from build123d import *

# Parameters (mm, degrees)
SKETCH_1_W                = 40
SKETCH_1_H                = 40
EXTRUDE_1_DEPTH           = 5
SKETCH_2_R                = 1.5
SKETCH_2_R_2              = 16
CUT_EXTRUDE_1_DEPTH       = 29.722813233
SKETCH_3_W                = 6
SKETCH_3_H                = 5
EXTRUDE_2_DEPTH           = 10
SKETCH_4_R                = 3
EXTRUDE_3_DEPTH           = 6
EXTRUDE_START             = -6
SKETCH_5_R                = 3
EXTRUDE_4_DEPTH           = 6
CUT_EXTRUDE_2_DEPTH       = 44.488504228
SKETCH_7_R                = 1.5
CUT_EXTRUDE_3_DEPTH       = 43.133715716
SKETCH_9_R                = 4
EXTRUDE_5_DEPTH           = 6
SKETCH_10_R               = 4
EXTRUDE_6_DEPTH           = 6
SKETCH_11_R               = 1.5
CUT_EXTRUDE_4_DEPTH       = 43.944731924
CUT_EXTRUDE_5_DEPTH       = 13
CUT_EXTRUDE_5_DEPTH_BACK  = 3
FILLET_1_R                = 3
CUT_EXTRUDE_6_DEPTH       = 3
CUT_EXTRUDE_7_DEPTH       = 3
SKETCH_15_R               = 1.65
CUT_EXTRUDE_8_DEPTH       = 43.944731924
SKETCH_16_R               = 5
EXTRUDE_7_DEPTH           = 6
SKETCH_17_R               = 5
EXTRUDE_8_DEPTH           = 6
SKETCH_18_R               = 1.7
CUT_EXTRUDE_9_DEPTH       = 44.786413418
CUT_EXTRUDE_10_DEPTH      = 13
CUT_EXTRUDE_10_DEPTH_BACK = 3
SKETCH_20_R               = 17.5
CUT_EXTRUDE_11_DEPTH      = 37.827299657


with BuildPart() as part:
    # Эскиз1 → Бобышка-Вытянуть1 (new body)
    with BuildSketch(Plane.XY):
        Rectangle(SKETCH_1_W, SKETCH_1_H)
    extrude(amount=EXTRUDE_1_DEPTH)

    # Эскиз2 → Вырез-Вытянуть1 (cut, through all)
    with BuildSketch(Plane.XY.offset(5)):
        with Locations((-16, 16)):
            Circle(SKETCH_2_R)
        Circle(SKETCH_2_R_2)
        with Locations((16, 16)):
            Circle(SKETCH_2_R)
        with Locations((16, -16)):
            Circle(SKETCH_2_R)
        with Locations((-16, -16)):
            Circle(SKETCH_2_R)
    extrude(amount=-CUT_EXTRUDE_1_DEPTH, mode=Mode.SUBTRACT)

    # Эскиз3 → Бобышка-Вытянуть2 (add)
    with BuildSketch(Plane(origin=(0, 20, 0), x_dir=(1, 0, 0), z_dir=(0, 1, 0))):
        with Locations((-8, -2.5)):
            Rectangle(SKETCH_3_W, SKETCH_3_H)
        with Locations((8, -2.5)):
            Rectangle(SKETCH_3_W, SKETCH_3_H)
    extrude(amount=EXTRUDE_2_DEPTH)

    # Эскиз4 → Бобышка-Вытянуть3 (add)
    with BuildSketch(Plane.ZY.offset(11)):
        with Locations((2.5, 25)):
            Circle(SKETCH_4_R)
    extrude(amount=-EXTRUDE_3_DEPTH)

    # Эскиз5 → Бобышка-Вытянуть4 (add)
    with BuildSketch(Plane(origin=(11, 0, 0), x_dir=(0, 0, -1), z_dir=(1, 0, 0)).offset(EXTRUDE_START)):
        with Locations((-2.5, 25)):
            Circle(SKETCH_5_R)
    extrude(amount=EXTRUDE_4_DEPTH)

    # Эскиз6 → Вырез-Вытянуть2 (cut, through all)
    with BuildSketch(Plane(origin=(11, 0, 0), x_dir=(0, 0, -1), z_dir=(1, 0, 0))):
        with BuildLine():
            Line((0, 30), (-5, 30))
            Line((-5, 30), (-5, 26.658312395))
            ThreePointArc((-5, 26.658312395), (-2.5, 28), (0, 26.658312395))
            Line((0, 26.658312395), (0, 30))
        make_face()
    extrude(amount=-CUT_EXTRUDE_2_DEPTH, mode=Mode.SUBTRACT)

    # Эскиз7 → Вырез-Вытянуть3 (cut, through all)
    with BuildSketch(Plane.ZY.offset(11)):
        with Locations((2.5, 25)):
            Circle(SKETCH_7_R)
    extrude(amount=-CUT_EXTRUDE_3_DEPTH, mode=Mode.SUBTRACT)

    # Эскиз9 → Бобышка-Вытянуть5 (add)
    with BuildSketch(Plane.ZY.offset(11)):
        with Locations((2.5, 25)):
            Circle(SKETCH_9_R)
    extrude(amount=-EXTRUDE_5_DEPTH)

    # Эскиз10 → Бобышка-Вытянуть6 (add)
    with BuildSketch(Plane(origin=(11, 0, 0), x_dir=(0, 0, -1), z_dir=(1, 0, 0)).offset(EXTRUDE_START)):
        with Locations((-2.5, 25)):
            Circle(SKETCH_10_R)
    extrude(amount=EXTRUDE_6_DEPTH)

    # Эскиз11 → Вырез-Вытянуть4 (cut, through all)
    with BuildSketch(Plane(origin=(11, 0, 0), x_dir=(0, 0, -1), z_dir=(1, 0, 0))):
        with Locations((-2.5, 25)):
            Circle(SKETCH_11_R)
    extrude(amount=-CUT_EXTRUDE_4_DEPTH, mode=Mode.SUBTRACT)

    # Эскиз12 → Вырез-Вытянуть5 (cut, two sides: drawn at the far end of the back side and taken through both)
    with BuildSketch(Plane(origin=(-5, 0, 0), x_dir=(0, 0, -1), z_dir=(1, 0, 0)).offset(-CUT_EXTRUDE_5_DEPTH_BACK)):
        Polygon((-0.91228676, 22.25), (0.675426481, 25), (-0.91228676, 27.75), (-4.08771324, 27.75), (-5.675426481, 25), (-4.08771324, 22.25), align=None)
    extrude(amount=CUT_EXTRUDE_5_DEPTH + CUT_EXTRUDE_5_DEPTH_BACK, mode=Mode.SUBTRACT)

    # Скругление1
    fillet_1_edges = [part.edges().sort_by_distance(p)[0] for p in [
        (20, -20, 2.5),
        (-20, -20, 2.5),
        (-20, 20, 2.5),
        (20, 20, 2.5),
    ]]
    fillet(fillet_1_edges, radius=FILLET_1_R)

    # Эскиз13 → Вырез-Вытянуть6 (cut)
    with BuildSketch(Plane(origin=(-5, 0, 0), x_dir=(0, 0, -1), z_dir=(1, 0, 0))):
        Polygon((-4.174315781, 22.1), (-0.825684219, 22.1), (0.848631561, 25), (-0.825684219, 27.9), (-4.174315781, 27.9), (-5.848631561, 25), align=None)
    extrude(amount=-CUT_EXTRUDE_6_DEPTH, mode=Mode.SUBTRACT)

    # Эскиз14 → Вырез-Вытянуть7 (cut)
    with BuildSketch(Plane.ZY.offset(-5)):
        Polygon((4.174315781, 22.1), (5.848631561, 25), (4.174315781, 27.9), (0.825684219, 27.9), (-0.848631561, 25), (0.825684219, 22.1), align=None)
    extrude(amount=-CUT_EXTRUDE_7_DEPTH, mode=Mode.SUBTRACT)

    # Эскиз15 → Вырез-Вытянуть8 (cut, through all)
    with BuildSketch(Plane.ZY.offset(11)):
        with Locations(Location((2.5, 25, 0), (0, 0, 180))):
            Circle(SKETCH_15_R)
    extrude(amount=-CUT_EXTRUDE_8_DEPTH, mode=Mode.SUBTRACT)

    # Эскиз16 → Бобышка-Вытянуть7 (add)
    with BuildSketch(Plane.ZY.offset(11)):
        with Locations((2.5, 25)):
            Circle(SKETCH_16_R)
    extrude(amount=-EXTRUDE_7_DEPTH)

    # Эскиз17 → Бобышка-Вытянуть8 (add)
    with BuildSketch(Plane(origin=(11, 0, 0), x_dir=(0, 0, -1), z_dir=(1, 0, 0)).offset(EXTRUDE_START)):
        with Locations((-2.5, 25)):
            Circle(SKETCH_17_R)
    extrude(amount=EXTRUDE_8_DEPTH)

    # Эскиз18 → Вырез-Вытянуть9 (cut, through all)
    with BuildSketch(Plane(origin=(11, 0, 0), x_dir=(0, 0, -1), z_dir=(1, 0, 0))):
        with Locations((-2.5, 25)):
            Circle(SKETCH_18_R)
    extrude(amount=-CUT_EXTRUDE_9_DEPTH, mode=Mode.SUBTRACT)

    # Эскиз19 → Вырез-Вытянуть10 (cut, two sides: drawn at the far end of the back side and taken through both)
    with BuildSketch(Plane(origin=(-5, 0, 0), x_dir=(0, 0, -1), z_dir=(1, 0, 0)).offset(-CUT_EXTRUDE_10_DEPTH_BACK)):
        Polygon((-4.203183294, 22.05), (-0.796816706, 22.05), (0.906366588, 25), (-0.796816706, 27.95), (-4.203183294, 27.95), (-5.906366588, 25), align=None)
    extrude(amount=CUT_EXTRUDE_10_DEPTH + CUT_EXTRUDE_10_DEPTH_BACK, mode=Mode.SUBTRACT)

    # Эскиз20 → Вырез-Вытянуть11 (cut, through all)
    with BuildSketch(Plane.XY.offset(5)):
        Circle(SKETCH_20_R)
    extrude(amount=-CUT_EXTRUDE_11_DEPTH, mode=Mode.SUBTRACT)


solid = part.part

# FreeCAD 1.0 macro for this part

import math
import FreeCAD as App
import Part
import Sketcher
Q = App.Units.Quantity


def edges_at(feature, points):
    """Names of the edges that pass closest to the given points."""
    edges = feature.Shape.Edges
    near = lambda p: min(range(len(edges)), key=lambda i: edges[i].distToShape(Part.Vertex(*p))[0])
    return sorted({f"Edge{near(p) + 1}" for p in points})

doc = App.newDocument("Part")
params = doc.addObject("Spreadsheet::Sheet", "Params")
for row, (alias, value) in enumerate([
    ("sketch1_width", "40 mm"),
    ("pad1_length", "5 mm"),
    ("sketch2_diameter", "3 mm"),
    ("sketch2_diameter2", "32 mm"),
    ("sketch3_width", "6 mm"),
    ("sketch3_height", "5 mm"),
    ("pad2_length", "10 mm"),
    ("sketch4_diameter", "6 mm"),
    ("pad3_length", "6 mm"),
    ("sketch5_diameter", "6 mm"),
    ("pad4_length", "6 mm"),
    ("sketch6_radius", "3 mm"),
    ("sketch6_height", "5 mm"),
    ("sketch7_diameter", "3 mm"),
    ("sketch8_diameter", "8 mm"),
    ("pad5_length", "6 mm"),
    ("sketch9_diameter", "8 mm"),
    ("pad6_length", "6 mm"),
    ("sketch10_diameter", "3 mm"),
    ("pocket5_length", "13 mm"),
    ("pocket5_length2", "3 mm"),
    ("fillet_radius", "3 mm"),
    ("pocket6_length", "3 mm"),
    ("pocket7_length", "3 mm"),
    ("sketch14_diameter", "3.3 mm"),
    ("sketch15_diameter", "10 mm"),
    ("pad7_length", "6 mm"),
    ("sketch16_diameter", "10 mm"),
    ("pad8_length", "6 mm"),
    ("sketch17_diameter", "3.4 mm"),
    ("pocket10_length", "13 mm"),
    ("pocket10_length2", "3 mm"),
    ("sketch19_diameter", "35 mm"),
], start=1):
    params.set(f"A{row}", alias)
    params.set(f"B{row}", "=" + value)
    params.setAlias(f"B{row}", alias)

body = doc.addObject("PartDesign::Body", "Body")

sketch1 = doc.addObject("Sketcher::SketchObject", "Sketch")
body.addObject(sketch1)
sketch1.AttachmentSupport = (doc.XY_Plane, [""])
sketch1.MapMode = "FlatFace"
sketch1.addGeometry(Part.LineSegment(App.Vector(-20, 20, 0), App.Vector(-20, -20, 0)), False)
sketch1.addGeometry(Part.LineSegment(App.Vector(-20, -20, 0), App.Vector(20, -20, 0)), False)
sketch1.addGeometry(Part.LineSegment(App.Vector(20, -20, 0), App.Vector(20, 20, 0)), False)
sketch1.addGeometry(Part.LineSegment(App.Vector(20, 20, 0), App.Vector(-20, 20, 0)), False)
sketch1.addConstraint(Sketcher.Constraint("Coincident", 0, 2, 1, 1))
sketch1.addConstraint(Sketcher.Constraint("Coincident", 1, 2, 2, 1))
sketch1.addConstraint(Sketcher.Constraint("Coincident", 2, 2, 3, 1))
sketch1.addConstraint(Sketcher.Constraint("Coincident", 3, 2, 0, 1))
sketch1.addConstraint(Sketcher.Constraint("Vertical", 0))
sketch1.addConstraint(Sketcher.Constraint("Horizontal", 1))
sketch1.addConstraint(Sketcher.Constraint("Vertical", 2))
sketch1.addConstraint(Sketcher.Constraint("Horizontal", 3))
sketch1.addConstraint(Sketcher.Constraint("Symmetric", 0, 2, 2, 2, -1, 1))
sketch1.addConstraint(Sketcher.Constraint("Equal", 3, 0))
sketch1.addConstraint(Sketcher.Constraint("DistanceX", 1, 1, 1, 2, 40.0))
sketch1.setExpression("Constraints[10]", "Params.sketch1_width")
pad1 = doc.addObject("PartDesign::Pad", "Pad")
body.addObject(pad1)
pad1.Profile = sketch1
pad1.setExpression("Length", "Params.pad1_length")

sketch2 = doc.addObject("Sketcher::SketchObject", "Sketch001")
body.addObject(sketch2)
sketch2.AttachmentSupport = (doc.XY_Plane, [""])
sketch2.MapMode = "FlatFace"
sketch2.AttachmentOffset = App.Placement(App.Vector(0, 0, 5), App.Rotation())
sketch2.addGeometry(Part.Circle(App.Vector(-16, 16, 0), App.Vector(0, 0, 1), 1.5), False)
sketch2.addGeometry(Part.Circle(App.Vector(0, 0, 0), App.Vector(0, 0, 1), 16), False)
sketch2.addGeometry(Part.Circle(App.Vector(16, 16, 0), App.Vector(0, 0, 1), 1.5), False)
sketch2.addGeometry(Part.Circle(App.Vector(16, -16, 0), App.Vector(0, 0, 1), 1.5), False)
sketch2.addGeometry(Part.Circle(App.Vector(-16, -16, 0), App.Vector(0, 0, 1), 1.5), False)
sketch2.addConstraint(Sketcher.Constraint("Coincident", 1, 3, -1, 1))
sketch2.addConstraint(Sketcher.Constraint("Equal", 0, 2))
sketch2.addConstraint(Sketcher.Constraint("Equal", 2, 3))
sketch2.addConstraint(Sketcher.Constraint("Equal", 3, 4))
sketch2.addConstraint(Sketcher.Constraint("Symmetric", 0, 3, 3, 3, -1, 1))
sketch2.addConstraint(Sketcher.Constraint("Symmetric", 2, 3, 4, 3, -1, 1))
sketch2.addConstraint(Sketcher.Constraint("Symmetric", 0, 3, 2, 3, -2))
sketch2.addConstraint(Sketcher.Constraint("Diameter", 0, 3.0))
sketch2.addConstraint(Sketcher.Constraint("Diameter", 1, 32.0))
sketch2.addConstraint(Sketcher.Constraint("DistanceX", 0, 3, -1, 1, 16.0))
sketch2.addConstraint(Sketcher.Constraint("DistanceY", -1, 1, 0, 3, 16.0))
sketch2.setExpression("Constraints[7]", "Params.sketch2_diameter")
sketch2.setExpression("Constraints[8]", "Params.sketch2_diameter2")
pocket1 = doc.addObject("PartDesign::Pocket", "Pocket")
body.addObject(pocket1)
pocket1.Profile = sketch2
pocket1.Type = "ThroughAll"

sketch3 = doc.addObject("Sketcher::SketchObject", "Sketch002")
body.addObject(sketch3)
sketch3.AttachmentSupport = (doc.XZ_Plane, [""])
sketch3.MapMode = "FlatFace"
sketch3.AttachmentOffset = App.Placement(App.Vector(0, 0, -20), App.Rotation())
sketch3.addGeometry(Part.LineSegment(App.Vector(-11, 0, 0), App.Vector(-11, 5, 0)), False)
sketch3.addGeometry(Part.LineSegment(App.Vector(-11, 5, 0), App.Vector(-5, 5, 0)), False)
sketch3.addGeometry(Part.LineSegment(App.Vector(-5, 5, 0), App.Vector(-5, 0, 0)), False)
sketch3.addGeometry(Part.LineSegment(App.Vector(-5, 0, 0), App.Vector(-11, 0, 0)), False)
sketch3.addGeometry(Part.LineSegment(App.Vector(5, 0, 0), App.Vector(5, 5, 0)), False)
sketch3.addGeometry(Part.LineSegment(App.Vector(5, 5, 0), App.Vector(11, 5, 0)), False)
sketch3.addGeometry(Part.LineSegment(App.Vector(11, 5, 0), App.Vector(11, 0, 0)), False)
sketch3.addGeometry(Part.LineSegment(App.Vector(11, 0, 0), App.Vector(5, 0, 0)), False)
sketch3.addConstraint(Sketcher.Constraint("Coincident", 0, 2, 1, 1))
sketch3.addConstraint(Sketcher.Constraint("Coincident", 1, 2, 2, 1))
sketch3.addConstraint(Sketcher.Constraint("Coincident", 2, 2, 3, 1))
sketch3.addConstraint(Sketcher.Constraint("Coincident", 3, 2, 0, 1))
sketch3.addConstraint(Sketcher.Constraint("Coincident", 4, 2, 5, 1))
sketch3.addConstraint(Sketcher.Constraint("Coincident", 5, 2, 6, 1))
sketch3.addConstraint(Sketcher.Constraint("Coincident", 6, 2, 7, 1))
sketch3.addConstraint(Sketcher.Constraint("Coincident", 7, 2, 4, 1))
sketch3.addConstraint(Sketcher.Constraint("Vertical", 0))
sketch3.addConstraint(Sketcher.Constraint("Horizontal", 1))
sketch3.addConstraint(Sketcher.Constraint("Vertical", 2))
sketch3.addConstraint(Sketcher.Constraint("Horizontal", 3))
sketch3.addConstraint(Sketcher.Constraint("Vertical", 4))
sketch3.addConstraint(Sketcher.Constraint("Horizontal", 5))
sketch3.addConstraint(Sketcher.Constraint("Vertical", 6))
sketch3.addConstraint(Sketcher.Constraint("Horizontal", 7))
sketch3.addConstraint(Sketcher.Constraint("Symmetric", 3, 2, 6, 2, -1, 1))
sketch3.addConstraint(Sketcher.Constraint("Symmetric", 1, 2, 4, 2, -2))
sketch3.addConstraint(Sketcher.Constraint("PointOnObject", 2, 2, -1))
sketch3.addConstraint(Sketcher.Constraint("DistanceX", 1, 1, 1, 2, 6.0))
sketch3.addConstraint(Sketcher.Constraint("DistanceY", 0, 1, 0, 2, 5.0))
sketch3.addConstraint(Sketcher.Constraint("DistanceX", 0, 2, -1, 1, 11.0))
sketch3.setExpression("Constraints[19]", "Params.sketch3_width")
sketch3.setExpression("Constraints[20]", "Params.sketch3_height")
pad2 = doc.addObject("PartDesign::Pad", "Pad001")
body.addObject(pad2)
pad2.Profile = sketch3
pad2.setExpression("Length", "Params.pad2_length")
pad2.Reversed = True

sketch4 = doc.addObject("Sketcher::SketchObject", "Sketch003")
body.addObject(sketch4)
sketch4.AttachmentSupport = (doc.YZ_Plane, [""])
sketch4.MapMode = "FlatFace"
sketch4.AttachmentOffset = App.Placement(App.Vector(0, 0, -11), App.Rotation())
sketch4.addGeometry(Part.Circle(App.Vector(25, 2.5, 0), App.Vector(0, 0, 1), 3), False)
sketch4.addConstraint(Sketcher.Constraint("Diameter", 0, 6.0))
sketch4.addConstraint(Sketcher.Constraint("DistanceX", -1, 1, 0, 3, 25.0))
sketch4.addConstraint(Sketcher.Constraint("DistanceY", -1, 1, 0, 3, 2.5))
sketch4.setExpression("Constraints[0]", "Params.sketch4_diameter")
pad3 = doc.addObject("PartDesign::Pad", "Pad002")
body.addObject(pad3)
pad3.Profile = sketch4
pad3.setExpression("Length", "Params.pad3_length")

sketch5 = doc.addObject("Sketcher::SketchObject", "Sketch004")
body.addObject(sketch5)
sketch5.AttachmentSupport = (doc.YZ_Plane, [""])
sketch5.MapMode = "FlatFace"
sketch5.AttachmentOffset = App.Placement(App.Vector(0, 0, 5), App.Rotation())
sketch5.addGeometry(Part.Circle(App.Vector(25, 2.5, 0), App.Vector(0, 0, 1), 3), False)
sketch5.addConstraint(Sketcher.Constraint("Diameter", 0, 6.0))
sketch5.addConstraint(Sketcher.Constraint("DistanceX", -1, 1, 0, 3, 25.0))
sketch5.addConstraint(Sketcher.Constraint("DistanceY", -1, 1, 0, 3, 2.5))
sketch5.setExpression("Constraints[0]", "Params.sketch5_diameter")
pad4 = doc.addObject("PartDesign::Pad", "Pad003")
body.addObject(pad4)
pad4.Profile = sketch5
pad4.setExpression("Length", "Params.pad4_length")

sketch6 = doc.addObject("Sketcher::SketchObject", "Sketch005")
body.addObject(sketch6)
sketch6.AttachmentSupport = (doc.YZ_Plane, [""])
sketch6.MapMode = "FlatFace"
sketch6.AttachmentOffset = App.Placement(App.Vector(0, 0, 11), App.Rotation())
sketch6.addGeometry(Part.LineSegment(App.Vector(30, 0, 0), App.Vector(30, 5, 0)), False)
sketch6.addGeometry(Part.LineSegment(App.Vector(30, 5, 0), App.Vector(26.658312, 5, 0)), False)
sketch6.addGeometry(Part.ArcOfCircle(Part.Circle(App.Vector(25, 2.5, 0), App.Vector(0, 0, 1), 3), math.radians(-56.44269), math.radians(56.44269)), False)
sketch6.addGeometry(Part.LineSegment(App.Vector(26.658312, 0, 0), App.Vector(30, 0, 0)), False)
sketch6.addConstraint(Sketcher.Constraint("Coincident", 0, 2, 1, 1))
sketch6.addConstraint(Sketcher.Constraint("Coincident", 1, 2, 2, 2))
sketch6.addConstraint(Sketcher.Constraint("Coincident", 2, 1, 3, 1))
sketch6.addConstraint(Sketcher.Constraint("Coincident", 3, 2, 0, 1))
sketch6.addConstraint(Sketcher.Constraint("Vertical", 0))
sketch6.addConstraint(Sketcher.Constraint("Horizontal", 1))
sketch6.addConstraint(Sketcher.Constraint("Horizontal", 3))
sketch6.addConstraint(Sketcher.Constraint("PointOnObject", 2, 1, -1))
sketch6.addConstraint(Sketcher.Constraint("Vertical", 1, 2, 2, 1))
sketch6.addConstraint(Sketcher.Constraint("Radius", 2, 3.0))
sketch6.addConstraint(Sketcher.Constraint("DistanceY", 0, 1, 0, 2, 5.0))
sketch6.addConstraint(Sketcher.Constraint("DistanceX", -1, 1, 2, 3, 25.0))
sketch6.addConstraint(Sketcher.Constraint("DistanceX", -1, 1, 0, 2, 30.0))
sketch6.setExpression("Constraints[9]", "Params.sketch6_radius")
sketch6.setExpression("Constraints[10]", "Params.sketch6_height")
pocket2 = doc.addObject("PartDesign::Pocket", "Pocket001")
body.addObject(pocket2)
pocket2.Profile = sketch6
pocket2.Type = "ThroughAll"

sketch7 = doc.addObject("Sketcher::SketchObject", "Sketch006")
body.addObject(sketch7)
sketch7.AttachmentSupport = (doc.YZ_Plane, [""])
sketch7.MapMode = "FlatFace"
sketch7.AttachmentOffset = App.Placement(App.Vector(0, 0, -11), App.Rotation())
sketch7.addGeometry(Part.Circle(App.Vector(25, 2.5, 0), App.Vector(0, 0, 1), 1.5), False)
sketch7.addConstraint(Sketcher.Constraint("Diameter", 0, 3.0))
sketch7.addConstraint(Sketcher.Constraint("DistanceX", -1, 1, 0, 3, 25.0))
sketch7.addConstraint(Sketcher.Constraint("DistanceY", -1, 1, 0, 3, 2.5))
sketch7.setExpression("Constraints[0]", "Params.sketch7_diameter")
pocket3 = doc.addObject("PartDesign::Pocket", "Pocket002")
body.addObject(pocket3)
pocket3.Profile = sketch7
pocket3.Type = "ThroughAll"
pocket3.Reversed = True

sketch8 = doc.addObject("Sketcher::SketchObject", "Sketch007")
body.addObject(sketch8)
sketch8.AttachmentSupport = (doc.YZ_Plane, [""])
sketch8.MapMode = "FlatFace"
sketch8.AttachmentOffset = App.Placement(App.Vector(0, 0, -11), App.Rotation())
sketch8.addGeometry(Part.Circle(App.Vector(25, 2.5, 0), App.Vector(0, 0, 1), 4), False)
sketch8.addConstraint(Sketcher.Constraint("Diameter", 0, 8.0))
sketch8.addConstraint(Sketcher.Constraint("DistanceX", -1, 1, 0, 3, 25.0))
sketch8.addConstraint(Sketcher.Constraint("DistanceY", -1, 1, 0, 3, 2.5))
sketch8.setExpression("Constraints[0]", "Params.sketch8_diameter")
pad5 = doc.addObject("PartDesign::Pad", "Pad004")
body.addObject(pad5)
pad5.Profile = sketch8
pad5.setExpression("Length", "Params.pad5_length")

sketch9 = doc.addObject("Sketcher::SketchObject", "Sketch008")
body.addObject(sketch9)
sketch9.AttachmentSupport = (doc.YZ_Plane, [""])
sketch9.MapMode = "FlatFace"
sketch9.AttachmentOffset = App.Placement(App.Vector(0, 0, 5), App.Rotation())
sketch9.addGeometry(Part.Circle(App.Vector(25, 2.5, 0), App.Vector(0, 0, 1), 4), False)
sketch9.addConstraint(Sketcher.Constraint("Diameter", 0, 8.0))
sketch9.addConstraint(Sketcher.Constraint("DistanceX", -1, 1, 0, 3, 25.0))
sketch9.addConstraint(Sketcher.Constraint("DistanceY", -1, 1, 0, 3, 2.5))
sketch9.setExpression("Constraints[0]", "Params.sketch9_diameter")
pad6 = doc.addObject("PartDesign::Pad", "Pad005")
body.addObject(pad6)
pad6.Profile = sketch9
pad6.setExpression("Length", "Params.pad6_length")

sketch10 = doc.addObject("Sketcher::SketchObject", "Sketch009")
body.addObject(sketch10)
sketch10.AttachmentSupport = (doc.YZ_Plane, [""])
sketch10.MapMode = "FlatFace"
sketch10.AttachmentOffset = App.Placement(App.Vector(0, 0, 11), App.Rotation())
sketch10.addGeometry(Part.Circle(App.Vector(25, 2.5, 0), App.Vector(0, 0, 1), 1.5), False)
sketch10.addConstraint(Sketcher.Constraint("Diameter", 0, 3.0))
sketch10.addConstraint(Sketcher.Constraint("DistanceX", -1, 1, 0, 3, 25.0))
sketch10.addConstraint(Sketcher.Constraint("DistanceY", -1, 1, 0, 3, 2.5))
sketch10.setExpression("Constraints[0]", "Params.sketch10_diameter")
pocket4 = doc.addObject("PartDesign::Pocket", "Pocket003")
body.addObject(pocket4)
pocket4.Profile = sketch10
pocket4.Type = "ThroughAll"

sketch11 = doc.addObject("Sketcher::SketchObject", "Sketch010")
body.addObject(sketch11)
sketch11.AttachmentSupport = (doc.YZ_Plane, [""])
sketch11.MapMode = "FlatFace"
sketch11.AttachmentOffset = App.Placement(App.Vector(0, 0, -5), App.Rotation())
sketch11.addGeometry(Part.LineSegment(App.Vector(22.25, 0.912287, 0), App.Vector(25, -0.675426, 0)), False)
sketch11.addGeometry(Part.LineSegment(App.Vector(25, -0.675426, 0), App.Vector(27.75, 0.912287, 0)), False)
sketch11.addGeometry(Part.LineSegment(App.Vector(27.75, 0.912287, 0), App.Vector(27.75, 4.087713, 0)), False)
sketch11.addGeometry(Part.LineSegment(App.Vector(27.75, 4.087713, 0), App.Vector(25, 5.675426, 0)), False)
sketch11.addGeometry(Part.LineSegment(App.Vector(25, 5.675426, 0), App.Vector(22.25, 4.087713, 0)), False)
sketch11.addGeometry(Part.LineSegment(App.Vector(22.25, 4.087713, 0), App.Vector(22.25, 0.912287, 0)), False)
sketch11.addConstraint(Sketcher.Constraint("Coincident", 0, 2, 1, 1))
sketch11.addConstraint(Sketcher.Constraint("Coincident", 1, 2, 2, 1))
sketch11.addConstraint(Sketcher.Constraint("Coincident", 2, 2, 3, 1))
sketch11.addConstraint(Sketcher.Constraint("Coincident", 3, 2, 4, 1))
sketch11.addConstraint(Sketcher.Constraint("Coincident", 4, 2, 5, 1))
sketch11.addConstraint(Sketcher.Constraint("Coincident", 5, 2, 0, 1))
sketch11.addConstraint(Sketcher.Constraint("Vertical", 2))
sketch11.addConstraint(Sketcher.Constraint("Vertical", 5))
sketch11.addConstraint(Sketcher.Constraint("Parallel", 0, 3))
sketch11.addConstraint(Sketcher.Constraint("Parallel", 1, 4))
sketch11.addConstraint(Sketcher.Constraint("Horizontal", 2, 2, 4, 2))
sketch11.addConstraint(Sketcher.Constraint("Horizontal", 1, 2, 5, 2))
sketch11.addConstraint(Sketcher.Constraint("Vertical", 0, 2, 3, 2))
sketch11.addConstraint(Sketcher.Constraint("Angle", 0, Q("-30 deg")))
sketch11.addConstraint(Sketcher.Constraint("DistanceX", -1, 1, 0, 2, 25.0))
sketch11.addConstraint(Sketcher.Constraint("DistanceX", 4, 2, 2, 2, 5.5))
sketch11.addConstraint(Sketcher.Constraint("DistanceY", 2, 1, 2, 2, 3.175426))
sketch11.addConstraint(Sketcher.Constraint("DistanceY", 0, 2, -1, 1, 0.675426))
pocket5 = doc.addObject("PartDesign::Pocket", "Pocket004")
body.addObject(pocket5)
pocket5.Profile = sketch11
pocket5.Type = "TwoLengths"
pocket5.setExpression("Length", "Params.pocket5_length")
pocket5.setExpression("Length2", "Params.pocket5_length2")
pocket5.Reversed = True
doc.recompute()

fillet = doc.addObject("PartDesign::Fillet", "Fillet")
body.addObject(fillet)
fillet.Base = (pocket5, edges_at(pocket5, [
    (20, -20, 2.5),
    (-20, -20, 2.5),
    (-20, 20, 2.5),
    (20, 20, 2.5),
]))
fillet.setExpression("Radius", "Params.fillet_radius")

sketch12 = doc.addObject("Sketcher::SketchObject", "Sketch011")
body.addObject(sketch12)
sketch12.AttachmentSupport = (doc.YZ_Plane, [""])
sketch12.MapMode = "FlatFace"
sketch12.AttachmentOffset = App.Placement(App.Vector(0, 0, -5), App.Rotation())
sketch12.addGeometry(Part.LineSegment(App.Vector(22.1, 4.174316, 0), App.Vector(22.1, 0.825684, 0)), False)
sketch12.addGeometry(Part.LineSegment(App.Vector(22.1, 0.825684, 0), App.Vector(25, -0.848632, 0)), False)
sketch12.addGeometry(Part.LineSegment(App.Vector(25, -0.848632, 0), App.Vector(27.9, 0.825684, 0)), False)
sketch12.addGeometry(Part.LineSegment(App.Vector(27.9, 0.825684, 0), App.Vector(27.9, 4.174316, 0)), False)
sketch12.addGeometry(Part.LineSegment(App.Vector(27.9, 4.174316, 0), App.Vector(25, 5.848632, 0)), False)
sketch12.addGeometry(Part.LineSegment(App.Vector(25, 5.848632, 0), App.Vector(22.1, 4.174316, 0)), False)
sketch12.addConstraint(Sketcher.Constraint("Coincident", 0, 2, 1, 1))
sketch12.addConstraint(Sketcher.Constraint("Coincident", 1, 2, 2, 1))
sketch12.addConstraint(Sketcher.Constraint("Coincident", 2, 2, 3, 1))
sketch12.addConstraint(Sketcher.Constraint("Coincident", 3, 2, 4, 1))
sketch12.addConstraint(Sketcher.Constraint("Coincident", 4, 2, 5, 1))
sketch12.addConstraint(Sketcher.Constraint("Coincident", 5, 2, 0, 1))
sketch12.addConstraint(Sketcher.Constraint("Vertical", 0))
sketch12.addConstraint(Sketcher.Constraint("Vertical", 3))
sketch12.addConstraint(Sketcher.Constraint("Parallel", 1, 4))
sketch12.addConstraint(Sketcher.Constraint("Parallel", 2, 5))
sketch12.addConstraint(Sketcher.Constraint("Horizontal", 0, 2, 2, 2))
sketch12.addConstraint(Sketcher.Constraint("Horizontal", 3, 2, 5, 2))
sketch12.addConstraint(Sketcher.Constraint("Vertical", 1, 2, 4, 2))
sketch12.addConstraint(Sketcher.Constraint("Angle", 1, Q("-30 deg")))
sketch12.addConstraint(Sketcher.Constraint("DistanceX", -1, 1, 1, 2, 25.0))
sketch12.addConstraint(Sketcher.Constraint("DistanceX", -1, 1, 0, 2, 22.1))
sketch12.addConstraint(Sketcher.Constraint("DistanceY", 0, 2, 0, 1, 3.348632))
sketch12.addConstraint(Sketcher.Constraint("DistanceY", 1, 2, -1, 1, 0.848632))
pocket6 = doc.addObject("PartDesign::Pocket", "Pocket005")
body.addObject(pocket6)
pocket6.Profile = sketch12
pocket6.setExpression("Length", "Params.pocket6_length")

sketch13 = doc.addObject("Sketcher::SketchObject", "Sketch012")
body.addObject(sketch13)
sketch13.AttachmentSupport = (doc.YZ_Plane, [""])
sketch13.MapMode = "FlatFace"
sketch13.AttachmentOffset = App.Placement(App.Vector(0, 0, 5), App.Rotation())
sketch13.addGeometry(Part.LineSegment(App.Vector(22.1, 4.174316, 0), App.Vector(25, 5.848632, 0)), False)
sketch13.addGeometry(Part.LineSegment(App.Vector(25, 5.848632, 0), App.Vector(27.9, 4.174316, 0)), False)
sketch13.addGeometry(Part.LineSegment(App.Vector(27.9, 4.174316, 0), App.Vector(27.9, 0.825684, 0)), False)
sketch13.addGeometry(Part.LineSegment(App.Vector(27.9, 0.825684, 0), App.Vector(25, -0.848632, 0)), False)
sketch13.addGeometry(Part.LineSegment(App.Vector(25, -0.848632, 0), App.Vector(22.1, 0.825684, 0)), False)
sketch13.addGeometry(Part.LineSegment(App.Vector(22.1, 0.825684, 0), App.Vector(22.1, 4.174316, 0)), False)
sketch13.addConstraint(Sketcher.Constraint("Coincident", 0, 2, 1, 1))
sketch13.addConstraint(Sketcher.Constraint("Coincident", 1, 2, 2, 1))
sketch13.addConstraint(Sketcher.Constraint("Coincident", 2, 2, 3, 1))
sketch13.addConstraint(Sketcher.Constraint("Coincident", 3, 2, 4, 1))
sketch13.addConstraint(Sketcher.Constraint("Coincident", 4, 2, 5, 1))
sketch13.addConstraint(Sketcher.Constraint("Coincident", 5, 2, 0, 1))
sketch13.addConstraint(Sketcher.Constraint("Vertical", 2))
sketch13.addConstraint(Sketcher.Constraint("Vertical", 5))
sketch13.addConstraint(Sketcher.Constraint("Parallel", 0, 3))
sketch13.addConstraint(Sketcher.Constraint("Parallel", 1, 4))
sketch13.addConstraint(Sketcher.Constraint("Horizontal", 2, 2, 4, 2))
sketch13.addConstraint(Sketcher.Constraint("Horizontal", 1, 2, 5, 2))
sketch13.addConstraint(Sketcher.Constraint("Vertical", 0, 2, 3, 2))
sketch13.addConstraint(Sketcher.Constraint("Angle", 0, Q("30 deg")))
sketch13.addConstraint(Sketcher.Constraint("DistanceX", -1, 1, 0, 2, 25.0))
sketch13.addConstraint(Sketcher.Constraint("DistanceX", -1, 1, 1, 2, 27.9))
sketch13.addConstraint(Sketcher.Constraint("DistanceY", 2, 2, 2, 1, 3.348632))
sketch13.addConstraint(Sketcher.Constraint("DistanceY", -1, 1, 0, 2, 5.848632))
pocket7 = doc.addObject("PartDesign::Pocket", "Pocket006")
body.addObject(pocket7)
pocket7.Profile = sketch13
pocket7.setExpression("Length", "Params.pocket7_length")
pocket7.Reversed = True

sketch14 = doc.addObject("Sketcher::SketchObject", "Sketch013")
body.addObject(sketch14)
sketch14.AttachmentSupport = (doc.YZ_Plane, [""])
sketch14.MapMode = "FlatFace"
sketch14.AttachmentOffset = App.Placement(App.Vector(0, 0, -11), App.Rotation())
sketch14.addGeometry(Part.Circle(App.Vector(25, 2.5, 0), App.Vector(0, 0, 1), 1.65), False)
sketch14.addConstraint(Sketcher.Constraint("Diameter", 0, 3.3))
sketch14.addConstraint(Sketcher.Constraint("DistanceX", -1, 1, 0, 3, 25.0))
sketch14.addConstraint(Sketcher.Constraint("DistanceY", -1, 1, 0, 3, 2.5))
sketch14.setExpression("Constraints[0]", "Params.sketch14_diameter")
pocket8 = doc.addObject("PartDesign::Pocket", "Pocket007")
body.addObject(pocket8)
pocket8.Profile = sketch14
pocket8.Type = "ThroughAll"
pocket8.Reversed = True

sketch15 = doc.addObject("Sketcher::SketchObject", "Sketch014")
body.addObject(sketch15)
sketch15.AttachmentSupport = (doc.YZ_Plane, [""])
sketch15.MapMode = "FlatFace"
sketch15.AttachmentOffset = App.Placement(App.Vector(0, 0, -11), App.Rotation())
sketch15.addGeometry(Part.Circle(App.Vector(25, 2.5, 0), App.Vector(0, 0, 1), 5), False)
sketch15.addConstraint(Sketcher.Constraint("Diameter", 0, 10.0))
sketch15.addConstraint(Sketcher.Constraint("DistanceX", -1, 1, 0, 3, 25.0))
sketch15.addConstraint(Sketcher.Constraint("DistanceY", -1, 1, 0, 3, 2.5))
sketch15.setExpression("Constraints[0]", "Params.sketch15_diameter")
pad7 = doc.addObject("PartDesign::Pad", "Pad006")
body.addObject(pad7)
pad7.Profile = sketch15
pad7.setExpression("Length", "Params.pad7_length")

sketch16 = doc.addObject("Sketcher::SketchObject", "Sketch015")
body.addObject(sketch16)
sketch16.AttachmentSupport = (doc.YZ_Plane, [""])
sketch16.MapMode = "FlatFace"
sketch16.AttachmentOffset = App.Placement(App.Vector(0, 0, 5), App.Rotation())
sketch16.addGeometry(Part.Circle(App.Vector(25, 2.5, 0), App.Vector(0, 0, 1), 5), False)
sketch16.addConstraint(Sketcher.Constraint("Diameter", 0, 10.0))
sketch16.addConstraint(Sketcher.Constraint("DistanceX", -1, 1, 0, 3, 25.0))
sketch16.addConstraint(Sketcher.Constraint("DistanceY", -1, 1, 0, 3, 2.5))
sketch16.setExpression("Constraints[0]", "Params.sketch16_diameter")
pad8 = doc.addObject("PartDesign::Pad", "Pad007")
body.addObject(pad8)
pad8.Profile = sketch16
pad8.setExpression("Length", "Params.pad8_length")

sketch17 = doc.addObject("Sketcher::SketchObject", "Sketch016")
body.addObject(sketch17)
sketch17.AttachmentSupport = (doc.YZ_Plane, [""])
sketch17.MapMode = "FlatFace"
sketch17.AttachmentOffset = App.Placement(App.Vector(0, 0, 11), App.Rotation())
sketch17.addGeometry(Part.Circle(App.Vector(25, 2.5, 0), App.Vector(0, 0, 1), 1.7), False)
sketch17.addConstraint(Sketcher.Constraint("Diameter", 0, 3.4))
sketch17.addConstraint(Sketcher.Constraint("DistanceX", -1, 1, 0, 3, 25.0))
sketch17.addConstraint(Sketcher.Constraint("DistanceY", -1, 1, 0, 3, 2.5))
sketch17.setExpression("Constraints[0]", "Params.sketch17_diameter")
pocket9 = doc.addObject("PartDesign::Pocket", "Pocket008")
body.addObject(pocket9)
pocket9.Profile = sketch17
pocket9.Type = "ThroughAll"

sketch18 = doc.addObject("Sketcher::SketchObject", "Sketch017")
body.addObject(sketch18)
sketch18.AttachmentSupport = (doc.YZ_Plane, [""])
sketch18.MapMode = "FlatFace"
sketch18.AttachmentOffset = App.Placement(App.Vector(0, 0, -5), App.Rotation())
sketch18.addGeometry(Part.LineSegment(App.Vector(22.05, 4.203183, 0), App.Vector(22.05, 0.796817, 0)), False)
sketch18.addGeometry(Part.LineSegment(App.Vector(22.05, 0.796817, 0), App.Vector(25, -0.906367, 0)), False)
sketch18.addGeometry(Part.LineSegment(App.Vector(25, -0.906367, 0), App.Vector(27.95, 0.796817, 0)), False)
sketch18.addGeometry(Part.LineSegment(App.Vector(27.95, 0.796817, 0), App.Vector(27.95, 4.203183, 0)), False)
sketch18.addGeometry(Part.LineSegment(App.Vector(27.95, 4.203183, 0), App.Vector(25, 5.906367, 0)), False)
sketch18.addGeometry(Part.LineSegment(App.Vector(25, 5.906367, 0), App.Vector(22.05, 4.203183, 0)), False)
sketch18.addConstraint(Sketcher.Constraint("Coincident", 0, 2, 1, 1))
sketch18.addConstraint(Sketcher.Constraint("Coincident", 1, 2, 2, 1))
sketch18.addConstraint(Sketcher.Constraint("Coincident", 2, 2, 3, 1))
sketch18.addConstraint(Sketcher.Constraint("Coincident", 3, 2, 4, 1))
sketch18.addConstraint(Sketcher.Constraint("Coincident", 4, 2, 5, 1))
sketch18.addConstraint(Sketcher.Constraint("Coincident", 5, 2, 0, 1))
sketch18.addConstraint(Sketcher.Constraint("Vertical", 0))
sketch18.addConstraint(Sketcher.Constraint("Vertical", 3))
sketch18.addConstraint(Sketcher.Constraint("Parallel", 1, 4))
sketch18.addConstraint(Sketcher.Constraint("Parallel", 2, 5))
sketch18.addConstraint(Sketcher.Constraint("Horizontal", 0, 2, 2, 2))
sketch18.addConstraint(Sketcher.Constraint("Horizontal", 3, 2, 5, 2))
sketch18.addConstraint(Sketcher.Constraint("Vertical", 1, 2, 4, 2))
sketch18.addConstraint(Sketcher.Constraint("Angle", 1, Q("-30 deg")))
sketch18.addConstraint(Sketcher.Constraint("DistanceX", -1, 1, 1, 2, 25.0))
sketch18.addConstraint(Sketcher.Constraint("DistanceX", 0, 2, 2, 2, 5.9))
sketch18.addConstraint(Sketcher.Constraint("DistanceY", 0, 2, 0, 1, 3.406367))
sketch18.addConstraint(Sketcher.Constraint("DistanceY", -1, 1, 0, 2, 0.796817))
pocket10 = doc.addObject("PartDesign::Pocket", "Pocket009")
body.addObject(pocket10)
pocket10.Profile = sketch18
pocket10.Type = "TwoLengths"
pocket10.setExpression("Length", "Params.pocket10_length")
pocket10.setExpression("Length2", "Params.pocket10_length2")
pocket10.Reversed = True

sketch19 = doc.addObject("Sketcher::SketchObject", "Sketch018")
body.addObject(sketch19)
sketch19.AttachmentSupport = (doc.XY_Plane, [""])
sketch19.MapMode = "FlatFace"
sketch19.AttachmentOffset = App.Placement(App.Vector(0, 0, 5), App.Rotation())
sketch19.addGeometry(Part.Circle(App.Vector(0, 0, 0), App.Vector(0, 0, 1), 17.5), False)
sketch19.addConstraint(Sketcher.Constraint("Coincident", 0, 3, -1, 1))
sketch19.addConstraint(Sketcher.Constraint("Diameter", 0, 35.0))
sketch19.setExpression("Constraints[1]", "Params.sketch19_diameter")
pocket11 = doc.addObject("PartDesign::Pocket", "Pocket010")
body.addObject(pocket11)
pocket11.Profile = sketch19
pocket11.Type = "ThroughAll"

doc.recompute()
